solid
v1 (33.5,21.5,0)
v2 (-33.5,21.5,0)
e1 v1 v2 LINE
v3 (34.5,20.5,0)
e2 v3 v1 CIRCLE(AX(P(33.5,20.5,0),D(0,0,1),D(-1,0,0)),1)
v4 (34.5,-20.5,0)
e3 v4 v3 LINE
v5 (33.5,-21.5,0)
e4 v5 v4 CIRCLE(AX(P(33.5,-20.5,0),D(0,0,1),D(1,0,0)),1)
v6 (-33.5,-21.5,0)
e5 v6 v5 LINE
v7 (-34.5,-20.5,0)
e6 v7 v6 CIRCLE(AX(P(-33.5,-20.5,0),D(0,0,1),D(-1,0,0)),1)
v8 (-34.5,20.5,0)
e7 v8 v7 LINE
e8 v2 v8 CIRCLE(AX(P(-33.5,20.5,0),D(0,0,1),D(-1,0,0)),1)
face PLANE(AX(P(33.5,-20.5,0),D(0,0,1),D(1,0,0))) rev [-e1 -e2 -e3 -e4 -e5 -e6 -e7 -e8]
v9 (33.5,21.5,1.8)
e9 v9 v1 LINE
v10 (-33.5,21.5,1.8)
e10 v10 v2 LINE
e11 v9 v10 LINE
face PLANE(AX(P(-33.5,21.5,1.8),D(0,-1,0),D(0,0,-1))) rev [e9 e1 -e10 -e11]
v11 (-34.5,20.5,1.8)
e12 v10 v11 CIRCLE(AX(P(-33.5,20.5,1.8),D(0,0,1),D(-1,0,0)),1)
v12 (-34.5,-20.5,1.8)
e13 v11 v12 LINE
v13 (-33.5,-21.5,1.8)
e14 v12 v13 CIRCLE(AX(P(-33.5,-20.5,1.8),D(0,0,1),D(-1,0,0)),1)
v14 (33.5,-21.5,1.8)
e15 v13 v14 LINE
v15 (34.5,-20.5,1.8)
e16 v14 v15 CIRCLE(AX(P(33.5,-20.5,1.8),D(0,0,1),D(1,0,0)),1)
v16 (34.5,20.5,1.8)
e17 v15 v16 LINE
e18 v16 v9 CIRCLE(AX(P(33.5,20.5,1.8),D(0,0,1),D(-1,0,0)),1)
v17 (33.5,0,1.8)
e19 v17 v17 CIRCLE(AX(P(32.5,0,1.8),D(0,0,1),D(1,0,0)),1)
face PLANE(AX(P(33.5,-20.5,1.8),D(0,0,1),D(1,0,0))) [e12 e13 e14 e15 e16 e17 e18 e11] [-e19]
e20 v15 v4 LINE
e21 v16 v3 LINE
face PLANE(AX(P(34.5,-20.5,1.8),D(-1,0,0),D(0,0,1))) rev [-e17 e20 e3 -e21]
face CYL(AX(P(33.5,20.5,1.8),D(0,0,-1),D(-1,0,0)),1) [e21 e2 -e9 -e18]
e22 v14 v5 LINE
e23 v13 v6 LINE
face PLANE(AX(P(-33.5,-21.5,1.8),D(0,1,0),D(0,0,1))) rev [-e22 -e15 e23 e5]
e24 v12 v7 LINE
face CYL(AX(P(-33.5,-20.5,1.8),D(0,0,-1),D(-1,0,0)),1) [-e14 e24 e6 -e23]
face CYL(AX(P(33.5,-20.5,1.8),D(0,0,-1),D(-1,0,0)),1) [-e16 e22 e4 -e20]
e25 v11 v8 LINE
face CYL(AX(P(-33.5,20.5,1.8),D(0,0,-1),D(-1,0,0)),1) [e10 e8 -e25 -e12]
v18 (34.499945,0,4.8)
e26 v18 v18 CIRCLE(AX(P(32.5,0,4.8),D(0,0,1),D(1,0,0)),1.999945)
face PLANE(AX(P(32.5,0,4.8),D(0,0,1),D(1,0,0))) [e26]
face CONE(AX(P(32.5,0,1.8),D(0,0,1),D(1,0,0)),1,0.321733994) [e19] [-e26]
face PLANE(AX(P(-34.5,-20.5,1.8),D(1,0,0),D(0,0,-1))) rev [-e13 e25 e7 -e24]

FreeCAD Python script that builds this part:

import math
import FreeCAD as App
import Part
import Sketcher

V = App.Vector
Q = App.Units.Quantity


def faces_at(feature, points):
    """Names of the faces that lie closest to the given points."""
    faces = feature.Shape.Faces
    near = lambda p: min(range(len(faces)), key=lambda i: faces[i].distToShape(Part.Vertex(*p))[0])
    return sorted({f"Face{near(p) + 1}" for p in points})

doc = App.newDocument("Part")
params = doc.addObject("Spreadsheet::Sheet", "Params")
for row, (alias, value) in enumerate([
    ("sketch1_radius", "1 mm"),
    ("sketch1_width", "67 mm"),
    ("sketch1_height", "41 mm"),
    ("pad1_length", "1.8 mm"),
    ("sketch2_diameter", "2 mm"),
    ("pad2_length", "3 mm"),
    ("draft_angle", "18.434 deg"),
], start=1):
    params.set(f"A{row}", alias)
    params.set(f"B{row}", "=" + value)
    params.setAlias(f"B{row}", alias)

body = doc.addObject("PartDesign::Body", "Body")

# Sketch on XY plane
sketch1 = body.newObject("Sketcher::SketchObject", "Sketch")
sketch1.AttachmentSupport = (doc.getObject("XY_Plane"), [""])
sketch1.MapMode = "FlatFace"
sketch1.addGeometry(Part.LineSegment(V(-33.5, -21.5, 0), V(33.5, -21.5, 0)), False)
sketch1.addGeometry(Part.ArcOfCircle(Part.Circle(V(33.5, -20.5, 0), V(0, 0, 1), 1), math.radians(-90), math.radians(0)), False)
sketch1.addGeometry(Part.LineSegment(V(34.5, -20.5, 0), V(34.5, 20.5, 0)), False)
sketch1.addGeometry(Part.ArcOfCircle(Part.Circle(V(33.5, 20.5, 0), V(0, 0, 1), 1), math.radians(0), math.radians(90)), False)
sketch1.addGeometry(Part.LineSegment(V(33.5, 21.5, 0), V(-33.5, 21.5, 0)), False)
sketch1.addGeometry(Part.ArcOfCircle(Part.Circle(V(-33.5, 20.5, 0), V(0, 0, 1), 1), math.radians(90), math.radians(180)), False)
sketch1.addGeometry(Part.LineSegment(V(-34.5, 20.5, 0), V(-34.5, -20.5, 0)), False)
sketch1.addGeometry(Part.ArcOfCircle(Part.Circle(V(-33.5, -20.5, 0), V(0, 0, 1), 1), math.radians(-180), math.radians(-90)), False)
sketch1.addConstraint(Sketcher.Constraint("Tangent", 0, 2, 1, 1))
sketch1.addConstraint(Sketcher.Constraint("Tangent", 1, 2, 2, 1))
sketch1.addConstraint(Sketcher.Constraint("Tangent", 2, 2, 3, 1))
sketch1.addConstraint(Sketcher.Constraint("Tangent", 3, 2, 4, 1))
sketch1.addConstraint(Sketcher.Constraint("Tangent", 4, 2, 5, 1))
sketch1.addConstraint(Sketcher.Constraint("Tangent", 5, 2, 6, 1))
sketch1.addConstraint(Sketcher.Constraint("Tangent", 6, 2, 7, 1))
sketch1.addConstraint(Sketcher.Constraint("Tangent", 7, 2, 0, 1))
sketch1.addConstraint(Sketcher.Constraint("Horizontal", 0))
sketch1.addConstraint(Sketcher.Constraint("Vertical", 2))
sketch1.addConstraint(Sketcher.Constraint("Horizontal", 4))
sketch1.addConstraint(Sketcher.Constraint("Vertical", 6))
sketch1.addConstraint(Sketcher.Constraint("Equal", 1, 3))
sketch1.addConstraint(Sketcher.Constraint("Equal", 3, 5))
sketch1.addConstraint(Sketcher.Constraint("Equal", 5, 7))
sketch1.addConstraint(Sketcher.Constraint("Symmetric", 1, 3, 5, 3, -1, 1))
sketch1.addConstraint(Sketcher.Constraint("Radius", 1, Q("1 mm")))
sketch1.addConstraint(Sketcher.Constraint("DistanceX", 0, 1, 0, 2, Q("67 mm")))
sketch1.addConstraint(Sketcher.Constraint("DistanceY", 2, 1, 2, 2, Q("41 mm")))
sketch1.setExpression("Constraints[16]", "Params.sketch1_radius")
sketch1.setExpression("Constraints[17]", "Params.sketch1_width")
sketch1.setExpression("Constraints[18]", "Params.sketch1_height")
pad1 = body.newObject("PartDesign::Pad", "Pad")
pad1.Profile = sketch1
pad1.setExpression("Length", "Params.pad1_length")
body2 = doc.addObject("PartDesign::Body", "Body001")

# Sketch on XY plane
sketch2 = body2.newObject("Sketcher::SketchObject", "Sketch001")
sketch2.AttachmentSupport = (doc.getObject("XY_Plane001"), [""])
sketch2.MapMode = "FlatFace"
sketch2.AttachmentOffset = App.Placement(V(0, 0, 1.8), App.Rotation())
sketch2.addGeometry(Part.Circle(V(32.5, 0, 0), V(0, 0, 1), 1), False)
sketch2.addConstraint(Sketcher.Constraint("PointOnObject", 0, 3, -1))
sketch2.addConstraint(Sketcher.Constraint("Diameter", 0, Q("2 mm")))
sketch2.addConstraint(Sketcher.Constraint("DistanceX", -1, 1, 0, 3, Q("32.5 mm")))
sketch2.setExpression("Constraints[1]", "Params.sketch2_diameter")
pad2 = body2.newObject("PartDesign::Pad", "Pad001")
pad2.Profile = sketch2
pad2.setExpression("Length", "Params.pad2_length")
doc.recompute()

datumplane = body2.newObject("PartDesign::Plane", "DatumPlane")
datumplane.AttachmentSupport = (doc.getObject("XY_Plane001"), [""])
datumplane.MapMode = "FlatFace"
datumplane.AttachmentOffset = App.Placement(V(0, 0, 1.8), App.Rotation())
draft = body2.newObject("PartDesign::Draft", "Draft")
draft.Base = (pad2, faces_at(pad2, [(31.5, 0, 3.3)]))
draft.NeutralPlane = (datumplane, [""])
draft.setExpression("Angle", "Params.draft_angle")
draft.Reversed = True
doc.recompute()

boolean = body.newObject("PartDesign::Boolean", "Boolean")
boolean.Type = "Fuse"
boolean.addObjects([body2])

doc.recompute()
